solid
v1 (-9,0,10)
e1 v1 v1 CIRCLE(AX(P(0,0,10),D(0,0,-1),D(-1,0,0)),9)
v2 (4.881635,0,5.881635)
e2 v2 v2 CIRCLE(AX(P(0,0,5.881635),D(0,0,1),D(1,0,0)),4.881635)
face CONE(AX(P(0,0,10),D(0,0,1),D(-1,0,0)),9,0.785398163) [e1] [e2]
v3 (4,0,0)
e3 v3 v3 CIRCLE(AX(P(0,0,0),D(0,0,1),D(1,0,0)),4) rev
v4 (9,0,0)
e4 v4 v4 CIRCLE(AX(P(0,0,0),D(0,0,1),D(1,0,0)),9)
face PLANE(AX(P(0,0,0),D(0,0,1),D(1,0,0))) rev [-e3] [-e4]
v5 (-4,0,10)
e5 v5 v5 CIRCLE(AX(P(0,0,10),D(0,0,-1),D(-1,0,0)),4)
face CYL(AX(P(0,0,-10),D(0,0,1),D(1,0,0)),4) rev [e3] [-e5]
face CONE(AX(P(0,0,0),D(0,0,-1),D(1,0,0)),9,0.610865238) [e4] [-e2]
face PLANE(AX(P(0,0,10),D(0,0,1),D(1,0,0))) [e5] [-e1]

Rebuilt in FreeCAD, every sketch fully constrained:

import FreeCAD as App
import Part
import Sketcher
Q = App.Units.Quantity


def faces_at(feature, points):
    """Names of the faces that lie closest to the given points."""
    faces = feature.Shape.Faces
    near = lambda p: min(range(len(faces)), key=lambda i: faces[i].distToShape(Part.Vertex(*p))[0])
    return sorted({f"Face{near(p) + 1}" for p in points})

doc = App.newDocument("Part")
body = doc.addObject("PartDesign::Body", "Body")

sketch1 = body.newObject("Sketcher::SketchObject", "Sketch")
sketch1.AttachmentSupport = (doc.getObject("XY_Plane"), [""])
sketch1.MapMode = "FlatFace"
sketch1.addGeometry(Part.Circle(App.Vector(0, 0, 0), App.Vector(0, 0, 1), 9), False)
sketch1.addConstraint(Sketcher.Constraint("Coincident", 0, 3, -1, 1))
sketch1.addConstraint(Sketcher.Constraint("Diameter", 0, Q("18 mm")))
pad1 = body.newObject("PartDesign::Pad", "Pad")
pad1.Profile = sketch1
pad1.Length = 10
pad1.TaperAngle = -35
body2 = doc.addObject("PartDesign::Body", "Body001")

sketch2 = body2.newObject("Sketcher::SketchObject", "Sketch001")
sketch2.AttachmentSupport = (doc.getObject("XY_Plane001"), [""])
sketch2.MapMode = "FlatFace"
sketch2.AttachmentOffset = App.Placement(App.Vector(0, 0, 10), App.Rotation())
sketch2.addGeometry(Part.Circle(App.Vector(0, 0, 0), App.Vector(0, 0, 1), 9), False)
sketch2.addConstraint(Sketcher.Constraint("Coincident", 0, 3, -1, 1))
sketch2.addConstraint(Sketcher.Constraint("Diameter", 0, Q("18 mm")))
pad2 = body2.newObject("PartDesign::Pad", "Pad001")
pad2.Profile = sketch2
pad2.Length = 10
pad2.Reversed = True
doc.recompute()

datumplane = body2.newObject("PartDesign::Plane", "DatumPlane")
datumplane.AttachmentSupport = (doc.getObject("XY_Plane001"), [""])
datumplane.MapMode = "FlatFace"
datumplane.AttachmentOffset = App.Placement(App.Vector(0, 0, 10), App.Rotation())
draft = body2.newObject("PartDesign::Draft", "Draft")
draft.Base = (pad2, faces_at(pad2, [(9, 0, 5)]))
draft.NeutralPlane = (datumplane, [""])
draft.Angle = 45
draft.Reversed = True
doc.recompute()

boolean = body.newObject("PartDesign::Boolean", "Boolean")
boolean.Type = "Fuse"
boolean.addObjects([body2])

sketch3 = body.newObject("Sketcher::SketchObject", "Sketch002")
sketch3.AttachmentSupport = (doc.getObject("XY_Plane"), [""])
sketch3.MapMode = "FlatFace"
sketch3.AttachmentOffset = App.Placement(App.Vector(0, 0, 10), App.Rotation())
sketch3.addGeometry(Part.Circle(App.Vector(0, 0, 0), App.Vector(0, 0, 1), 4), False)
sketch3.addConstraint(Sketcher.Constraint("Coincident", 0, 3, -1, 1))
sketch3.addConstraint(Sketcher.Constraint("Diameter", 0, Q("8 mm")))
pocket1 = body.newObject("PartDesign::Pocket", "Pocket")
pocket1.Profile = sketch3
pocket1.Length = 20

doc.recompute()
